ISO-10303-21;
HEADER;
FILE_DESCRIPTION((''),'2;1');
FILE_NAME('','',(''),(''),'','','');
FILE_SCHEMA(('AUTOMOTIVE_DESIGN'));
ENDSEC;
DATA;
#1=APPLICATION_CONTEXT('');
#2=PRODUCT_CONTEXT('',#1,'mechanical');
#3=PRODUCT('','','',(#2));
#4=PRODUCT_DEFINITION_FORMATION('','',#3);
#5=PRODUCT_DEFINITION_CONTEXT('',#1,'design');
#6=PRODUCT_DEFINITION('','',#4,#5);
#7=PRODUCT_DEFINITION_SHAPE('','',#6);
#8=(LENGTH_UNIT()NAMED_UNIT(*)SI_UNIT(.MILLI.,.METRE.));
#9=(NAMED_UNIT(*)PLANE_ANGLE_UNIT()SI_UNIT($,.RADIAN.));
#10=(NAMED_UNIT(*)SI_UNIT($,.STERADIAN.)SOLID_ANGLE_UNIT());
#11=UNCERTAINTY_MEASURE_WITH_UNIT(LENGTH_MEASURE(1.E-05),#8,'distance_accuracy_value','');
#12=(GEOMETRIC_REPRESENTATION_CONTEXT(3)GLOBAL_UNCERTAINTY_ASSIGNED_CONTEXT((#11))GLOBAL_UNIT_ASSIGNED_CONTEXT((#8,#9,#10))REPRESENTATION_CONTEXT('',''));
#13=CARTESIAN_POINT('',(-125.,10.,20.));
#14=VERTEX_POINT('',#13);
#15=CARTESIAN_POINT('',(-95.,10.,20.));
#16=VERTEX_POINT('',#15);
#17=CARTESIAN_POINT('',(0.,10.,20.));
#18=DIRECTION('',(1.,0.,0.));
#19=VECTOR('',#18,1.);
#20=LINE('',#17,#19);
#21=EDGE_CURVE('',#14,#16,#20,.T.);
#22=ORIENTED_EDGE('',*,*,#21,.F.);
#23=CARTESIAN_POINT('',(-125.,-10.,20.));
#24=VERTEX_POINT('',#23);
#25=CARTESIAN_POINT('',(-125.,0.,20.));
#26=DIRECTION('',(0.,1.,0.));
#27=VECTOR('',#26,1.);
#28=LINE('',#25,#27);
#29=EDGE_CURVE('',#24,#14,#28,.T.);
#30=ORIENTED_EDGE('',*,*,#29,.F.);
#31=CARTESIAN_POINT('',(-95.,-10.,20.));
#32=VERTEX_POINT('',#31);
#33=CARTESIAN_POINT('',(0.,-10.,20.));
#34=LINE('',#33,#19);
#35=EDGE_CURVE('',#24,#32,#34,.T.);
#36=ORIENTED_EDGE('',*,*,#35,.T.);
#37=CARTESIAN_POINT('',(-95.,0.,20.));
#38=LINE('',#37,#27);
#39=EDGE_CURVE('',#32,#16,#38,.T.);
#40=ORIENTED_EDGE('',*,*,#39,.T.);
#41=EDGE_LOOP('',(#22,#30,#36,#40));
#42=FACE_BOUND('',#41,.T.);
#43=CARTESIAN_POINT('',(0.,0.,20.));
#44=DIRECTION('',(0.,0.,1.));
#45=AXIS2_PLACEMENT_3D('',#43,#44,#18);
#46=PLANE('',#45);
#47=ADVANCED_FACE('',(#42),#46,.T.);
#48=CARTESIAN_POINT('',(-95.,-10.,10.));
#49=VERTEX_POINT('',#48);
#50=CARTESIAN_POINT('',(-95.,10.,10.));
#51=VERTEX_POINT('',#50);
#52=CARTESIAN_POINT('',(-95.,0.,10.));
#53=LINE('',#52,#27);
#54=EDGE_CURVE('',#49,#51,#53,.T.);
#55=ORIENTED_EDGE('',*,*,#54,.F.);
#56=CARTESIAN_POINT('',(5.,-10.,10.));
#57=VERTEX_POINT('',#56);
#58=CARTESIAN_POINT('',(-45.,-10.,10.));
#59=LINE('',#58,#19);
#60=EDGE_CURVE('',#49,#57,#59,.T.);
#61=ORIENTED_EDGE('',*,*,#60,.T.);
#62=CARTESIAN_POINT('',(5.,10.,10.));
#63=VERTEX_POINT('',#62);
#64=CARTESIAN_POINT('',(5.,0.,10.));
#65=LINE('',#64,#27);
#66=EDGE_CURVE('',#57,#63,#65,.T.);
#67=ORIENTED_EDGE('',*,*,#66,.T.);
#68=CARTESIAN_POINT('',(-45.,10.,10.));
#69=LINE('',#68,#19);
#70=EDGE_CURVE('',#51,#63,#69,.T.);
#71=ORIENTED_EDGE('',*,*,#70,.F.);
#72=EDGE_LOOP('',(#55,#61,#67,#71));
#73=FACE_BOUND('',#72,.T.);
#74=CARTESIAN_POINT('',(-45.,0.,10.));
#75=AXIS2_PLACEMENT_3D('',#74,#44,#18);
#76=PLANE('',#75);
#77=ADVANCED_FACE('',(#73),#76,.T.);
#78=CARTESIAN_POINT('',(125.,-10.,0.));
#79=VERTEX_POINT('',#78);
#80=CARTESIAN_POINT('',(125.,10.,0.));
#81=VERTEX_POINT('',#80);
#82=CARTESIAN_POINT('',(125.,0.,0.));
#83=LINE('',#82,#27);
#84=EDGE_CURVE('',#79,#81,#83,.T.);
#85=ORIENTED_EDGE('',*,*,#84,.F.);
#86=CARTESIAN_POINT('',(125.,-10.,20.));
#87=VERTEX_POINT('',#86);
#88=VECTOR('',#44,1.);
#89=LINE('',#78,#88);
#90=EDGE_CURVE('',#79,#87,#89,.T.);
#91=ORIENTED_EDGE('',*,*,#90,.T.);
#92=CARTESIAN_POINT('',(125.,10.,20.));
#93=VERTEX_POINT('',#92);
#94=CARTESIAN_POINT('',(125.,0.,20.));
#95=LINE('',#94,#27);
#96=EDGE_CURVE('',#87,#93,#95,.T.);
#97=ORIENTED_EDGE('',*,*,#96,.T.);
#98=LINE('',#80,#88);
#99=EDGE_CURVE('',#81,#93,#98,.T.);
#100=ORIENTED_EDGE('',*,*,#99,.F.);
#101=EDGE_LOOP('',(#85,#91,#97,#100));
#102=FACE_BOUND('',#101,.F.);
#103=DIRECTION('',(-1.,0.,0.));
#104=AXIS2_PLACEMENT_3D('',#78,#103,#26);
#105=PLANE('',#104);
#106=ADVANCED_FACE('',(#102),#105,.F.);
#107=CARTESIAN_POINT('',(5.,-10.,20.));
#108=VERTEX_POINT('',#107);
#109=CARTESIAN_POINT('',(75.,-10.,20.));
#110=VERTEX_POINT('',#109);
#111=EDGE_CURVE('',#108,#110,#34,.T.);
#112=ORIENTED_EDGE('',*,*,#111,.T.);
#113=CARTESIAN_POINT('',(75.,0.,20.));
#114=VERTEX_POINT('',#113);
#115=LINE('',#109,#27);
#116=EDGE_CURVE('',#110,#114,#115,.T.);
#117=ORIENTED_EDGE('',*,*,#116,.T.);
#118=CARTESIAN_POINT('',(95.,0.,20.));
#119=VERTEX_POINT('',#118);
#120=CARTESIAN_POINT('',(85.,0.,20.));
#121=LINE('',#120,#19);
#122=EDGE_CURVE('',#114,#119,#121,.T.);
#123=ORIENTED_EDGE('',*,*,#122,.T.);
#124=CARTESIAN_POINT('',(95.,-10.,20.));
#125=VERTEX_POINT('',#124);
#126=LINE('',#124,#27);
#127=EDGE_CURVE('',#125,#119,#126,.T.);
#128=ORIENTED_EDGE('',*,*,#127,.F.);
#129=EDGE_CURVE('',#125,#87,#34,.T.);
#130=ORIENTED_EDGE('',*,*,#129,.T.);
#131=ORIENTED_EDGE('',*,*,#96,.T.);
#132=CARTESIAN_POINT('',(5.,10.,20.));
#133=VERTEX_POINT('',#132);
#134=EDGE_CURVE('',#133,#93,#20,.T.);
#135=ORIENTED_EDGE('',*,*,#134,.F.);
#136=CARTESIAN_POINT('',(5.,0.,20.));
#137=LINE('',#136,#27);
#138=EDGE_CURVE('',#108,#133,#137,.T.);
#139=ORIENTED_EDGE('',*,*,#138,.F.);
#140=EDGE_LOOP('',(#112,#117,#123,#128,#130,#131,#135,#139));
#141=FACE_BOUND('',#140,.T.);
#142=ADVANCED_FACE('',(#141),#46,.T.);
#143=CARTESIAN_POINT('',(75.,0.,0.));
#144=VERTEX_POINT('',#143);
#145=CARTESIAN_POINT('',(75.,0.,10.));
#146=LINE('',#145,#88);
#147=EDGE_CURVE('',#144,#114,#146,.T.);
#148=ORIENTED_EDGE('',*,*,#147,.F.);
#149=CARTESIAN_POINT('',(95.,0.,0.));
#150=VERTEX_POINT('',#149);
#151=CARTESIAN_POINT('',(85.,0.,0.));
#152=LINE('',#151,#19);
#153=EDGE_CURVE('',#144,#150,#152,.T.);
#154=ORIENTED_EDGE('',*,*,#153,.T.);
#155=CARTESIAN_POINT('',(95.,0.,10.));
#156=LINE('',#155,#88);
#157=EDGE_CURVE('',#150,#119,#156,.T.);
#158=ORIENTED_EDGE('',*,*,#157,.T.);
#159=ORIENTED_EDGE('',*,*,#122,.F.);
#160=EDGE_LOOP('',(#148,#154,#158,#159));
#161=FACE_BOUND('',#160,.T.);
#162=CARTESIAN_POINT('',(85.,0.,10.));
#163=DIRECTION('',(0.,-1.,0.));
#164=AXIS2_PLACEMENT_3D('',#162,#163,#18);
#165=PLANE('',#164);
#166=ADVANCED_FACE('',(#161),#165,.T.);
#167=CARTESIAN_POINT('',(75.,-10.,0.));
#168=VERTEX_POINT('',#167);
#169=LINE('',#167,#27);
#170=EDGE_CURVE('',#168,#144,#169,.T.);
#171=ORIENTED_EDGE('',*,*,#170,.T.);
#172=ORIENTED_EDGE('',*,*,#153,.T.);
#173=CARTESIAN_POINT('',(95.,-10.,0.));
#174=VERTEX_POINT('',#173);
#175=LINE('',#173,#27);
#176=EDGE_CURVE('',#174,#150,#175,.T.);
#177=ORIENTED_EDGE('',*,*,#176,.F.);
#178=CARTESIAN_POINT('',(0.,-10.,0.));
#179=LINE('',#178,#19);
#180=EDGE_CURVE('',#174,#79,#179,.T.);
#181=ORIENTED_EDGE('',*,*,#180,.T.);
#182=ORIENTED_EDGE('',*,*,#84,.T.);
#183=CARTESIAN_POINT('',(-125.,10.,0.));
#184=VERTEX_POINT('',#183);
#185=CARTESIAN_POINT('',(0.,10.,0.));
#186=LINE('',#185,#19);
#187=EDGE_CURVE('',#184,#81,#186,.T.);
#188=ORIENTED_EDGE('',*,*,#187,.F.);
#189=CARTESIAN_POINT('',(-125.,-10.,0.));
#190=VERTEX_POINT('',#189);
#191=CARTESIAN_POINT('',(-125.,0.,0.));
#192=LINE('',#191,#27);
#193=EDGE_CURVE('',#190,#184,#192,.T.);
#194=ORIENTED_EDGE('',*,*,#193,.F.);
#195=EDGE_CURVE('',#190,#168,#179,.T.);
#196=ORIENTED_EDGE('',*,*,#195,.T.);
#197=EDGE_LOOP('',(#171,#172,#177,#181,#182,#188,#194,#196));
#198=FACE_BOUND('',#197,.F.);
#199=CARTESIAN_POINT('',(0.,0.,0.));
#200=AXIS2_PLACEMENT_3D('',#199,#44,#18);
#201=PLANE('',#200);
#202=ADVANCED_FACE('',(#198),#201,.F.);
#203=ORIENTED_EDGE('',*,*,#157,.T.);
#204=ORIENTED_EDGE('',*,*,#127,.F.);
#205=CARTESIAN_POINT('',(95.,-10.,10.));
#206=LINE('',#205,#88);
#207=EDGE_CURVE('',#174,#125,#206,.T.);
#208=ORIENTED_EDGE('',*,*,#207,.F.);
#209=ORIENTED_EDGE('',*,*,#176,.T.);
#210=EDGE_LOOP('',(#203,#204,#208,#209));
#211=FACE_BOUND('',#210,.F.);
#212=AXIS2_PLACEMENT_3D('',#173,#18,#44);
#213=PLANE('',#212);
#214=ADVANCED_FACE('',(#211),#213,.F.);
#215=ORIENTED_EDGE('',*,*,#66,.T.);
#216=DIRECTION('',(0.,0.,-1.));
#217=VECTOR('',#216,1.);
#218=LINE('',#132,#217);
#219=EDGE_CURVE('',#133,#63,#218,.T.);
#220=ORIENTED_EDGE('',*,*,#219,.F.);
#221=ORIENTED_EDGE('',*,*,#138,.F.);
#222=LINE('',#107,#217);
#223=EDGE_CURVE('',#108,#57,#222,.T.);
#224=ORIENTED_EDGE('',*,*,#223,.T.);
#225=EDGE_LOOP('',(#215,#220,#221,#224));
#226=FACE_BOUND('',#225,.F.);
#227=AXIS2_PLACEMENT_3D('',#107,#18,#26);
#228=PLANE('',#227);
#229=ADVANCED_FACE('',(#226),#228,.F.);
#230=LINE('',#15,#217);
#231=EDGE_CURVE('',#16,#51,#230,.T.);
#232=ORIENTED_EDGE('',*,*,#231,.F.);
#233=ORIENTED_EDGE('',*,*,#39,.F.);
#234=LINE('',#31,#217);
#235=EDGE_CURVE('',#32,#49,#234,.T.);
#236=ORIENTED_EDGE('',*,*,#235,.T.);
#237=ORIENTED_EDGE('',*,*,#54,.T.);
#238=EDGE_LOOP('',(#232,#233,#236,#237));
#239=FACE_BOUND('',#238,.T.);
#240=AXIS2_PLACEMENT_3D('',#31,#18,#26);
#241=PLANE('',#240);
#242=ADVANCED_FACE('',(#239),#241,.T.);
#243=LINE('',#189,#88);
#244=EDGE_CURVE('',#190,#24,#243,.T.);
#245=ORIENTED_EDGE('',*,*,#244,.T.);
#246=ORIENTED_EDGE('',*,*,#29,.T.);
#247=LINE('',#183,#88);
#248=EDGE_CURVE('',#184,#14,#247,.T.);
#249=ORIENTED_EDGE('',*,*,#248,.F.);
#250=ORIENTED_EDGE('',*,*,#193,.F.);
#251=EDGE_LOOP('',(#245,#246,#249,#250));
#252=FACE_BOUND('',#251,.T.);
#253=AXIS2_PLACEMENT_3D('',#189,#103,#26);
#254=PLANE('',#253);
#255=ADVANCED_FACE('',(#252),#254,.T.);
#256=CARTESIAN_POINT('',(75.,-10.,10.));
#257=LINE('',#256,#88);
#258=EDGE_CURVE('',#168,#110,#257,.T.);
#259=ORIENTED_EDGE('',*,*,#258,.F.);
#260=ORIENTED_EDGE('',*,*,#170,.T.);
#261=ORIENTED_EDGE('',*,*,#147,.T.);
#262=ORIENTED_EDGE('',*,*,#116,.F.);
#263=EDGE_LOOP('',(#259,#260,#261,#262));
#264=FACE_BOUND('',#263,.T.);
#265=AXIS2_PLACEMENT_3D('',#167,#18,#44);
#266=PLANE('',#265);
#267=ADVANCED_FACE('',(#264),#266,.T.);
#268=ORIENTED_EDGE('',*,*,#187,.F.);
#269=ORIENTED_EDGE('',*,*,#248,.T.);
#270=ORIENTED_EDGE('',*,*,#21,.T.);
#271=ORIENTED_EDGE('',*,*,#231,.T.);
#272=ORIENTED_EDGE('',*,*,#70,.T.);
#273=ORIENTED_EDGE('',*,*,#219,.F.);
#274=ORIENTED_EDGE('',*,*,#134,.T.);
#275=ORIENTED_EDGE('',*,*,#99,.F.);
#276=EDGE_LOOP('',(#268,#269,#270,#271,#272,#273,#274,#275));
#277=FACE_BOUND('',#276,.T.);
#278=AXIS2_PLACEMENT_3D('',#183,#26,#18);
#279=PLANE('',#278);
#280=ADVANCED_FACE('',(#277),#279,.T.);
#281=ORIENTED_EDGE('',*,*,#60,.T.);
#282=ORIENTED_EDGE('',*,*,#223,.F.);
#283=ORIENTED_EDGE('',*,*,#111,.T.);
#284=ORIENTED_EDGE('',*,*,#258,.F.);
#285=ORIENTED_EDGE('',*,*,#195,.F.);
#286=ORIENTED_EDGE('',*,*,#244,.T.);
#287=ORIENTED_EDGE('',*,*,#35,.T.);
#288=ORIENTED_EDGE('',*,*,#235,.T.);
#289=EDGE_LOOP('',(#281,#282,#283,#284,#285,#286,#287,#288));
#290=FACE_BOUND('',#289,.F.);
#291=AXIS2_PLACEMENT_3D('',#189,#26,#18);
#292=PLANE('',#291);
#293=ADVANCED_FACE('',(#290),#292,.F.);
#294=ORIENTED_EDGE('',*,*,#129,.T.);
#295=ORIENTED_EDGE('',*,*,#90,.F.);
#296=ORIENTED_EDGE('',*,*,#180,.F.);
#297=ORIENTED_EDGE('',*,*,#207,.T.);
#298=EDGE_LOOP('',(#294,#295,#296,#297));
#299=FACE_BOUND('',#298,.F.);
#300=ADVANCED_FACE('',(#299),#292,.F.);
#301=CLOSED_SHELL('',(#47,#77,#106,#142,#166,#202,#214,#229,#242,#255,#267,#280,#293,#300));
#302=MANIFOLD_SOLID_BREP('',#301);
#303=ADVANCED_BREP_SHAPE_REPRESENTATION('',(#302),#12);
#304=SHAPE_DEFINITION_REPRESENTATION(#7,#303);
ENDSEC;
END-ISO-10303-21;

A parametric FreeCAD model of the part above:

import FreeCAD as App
import Part
import Sketcher

V = App.Vector
Q = App.Units.Quantity


def add_polygon(sketch, points):
    """Adds a closed chain of lines whose ends are joined by coincident constraints."""
    first, n = sketch.GeometryCount, len(points)
    for a, b in zip(points, points[1:] + points[:1]):
        sketch.addGeometry(Part.LineSegment(App.Vector(*a, 0), App.Vector(*b, 0)), False)
    for i in range(n):
        sketch.addConstraint(Sketcher.Constraint("Coincident", first + i, 2, first + (i + 1) % n, 1))

doc = App.newDocument("Part")
body = doc.addObject("PartDesign::Body", "Body")

sketch1 = doc.addObject("Sketcher::SketchObject", "Sketch")
body.addObject(sketch1)
sketch1.AttachmentSupport = (doc.XY_Plane, [""])
sketch1.MapMode = "FlatFace"
add_polygon(sketch1, [(-125, 10), (-125, -10), (125, -10), (125, 10)])
sketch1.addConstraint([
    Sketcher.Constraint("Vertical", 0),
    Sketcher.Constraint("Horizontal", 1),
    Sketcher.Constraint("Vertical", 2),
    Sketcher.Constraint("Horizontal", 3),
    Sketcher.Constraint("Symmetric", 0, 2, 2, 2, -1, 1),
    Sketcher.Constraint("DistanceX", 1, 1, 1, 2, Q("250 mm")),
    Sketcher.Constraint("DistanceY", 0, 2, 0, 1, Q("20 mm")),
])
pad1 = doc.addObject("PartDesign::Pad", "Pad")
body.addObject(pad1)
pad1.Profile = sketch1
pad1.Length = 20

sketch2 = doc.addObject("Sketcher::SketchObject", "Sketch001")
body.addObject(sketch2)
sketch2.AttachmentSupport = (doc.XZ_Plane, [""])
sketch2.MapMode = "FlatFace"
sketch2.AttachmentOffset = App.Placement(V(0, 0, 10), App.Rotation())
add_polygon(sketch2, [(75, 20), (75, 0), (95, 0), (95, 20)])
sketch2.addConstraint([
    Sketcher.Constraint("Vertical", 0),
    Sketcher.Constraint("Horizontal", 1),
    Sketcher.Constraint("Vertical", 2),
    Sketcher.Constraint("Horizontal", 3),
    Sketcher.Constraint("PointOnObject", 0, 2, -1),
    Sketcher.Constraint("Equal", 3, 0),
    Sketcher.Constraint("DistanceX", 1, 1, 1, 2, Q("20 mm")),
    Sketcher.Constraint("DistanceX", -1, 1, 0, 2, Q("75 mm")),
])
pocket1 = doc.addObject("PartDesign::Pocket", "Pocket")
body.addObject(pocket1)
pocket1.Profile = sketch2
pocket1.Length = 10

sketch3 = doc.addObject("Sketcher::SketchObject", "Sketch002")
body.addObject(sketch3)
sketch3.AttachmentSupport = (doc.XY_Plane, [""])
sketch3.MapMode = "FlatFace"
sketch3.AttachmentOffset = App.Placement(V(0, 0, 20), App.Rotation())
add_polygon(sketch3, [(-95, 10), (-95, -10), (5, -10), (5, 10)])
sketch3.addConstraint([
    Sketcher.Constraint("Vertical", 0),
    Sketcher.Constraint("Horizontal", 1),
    Sketcher.Constraint("Vertical", 2),
    Sketcher.Constraint("Horizontal", 3),
    Sketcher.Constraint("DistanceX", 1, 1, 1, 2, Q("100 mm")),
    Sketcher.Constraint("DistanceY", 0, 2, 0, 1, Q("20 mm")),
    Sketcher.Constraint("DistanceX", 0, 2, -1, 1, Q("95 mm")),
    Sketcher.Constraint("DistanceY", 0, 2, -1, 1, Q("10 mm")),
])
pocket2 = doc.addObject("PartDesign::Pocket", "Pocket001")
body.addObject(pocket2)
pocket2.Profile = sketch3
pocket2.Length = 10

doc.recompute()
